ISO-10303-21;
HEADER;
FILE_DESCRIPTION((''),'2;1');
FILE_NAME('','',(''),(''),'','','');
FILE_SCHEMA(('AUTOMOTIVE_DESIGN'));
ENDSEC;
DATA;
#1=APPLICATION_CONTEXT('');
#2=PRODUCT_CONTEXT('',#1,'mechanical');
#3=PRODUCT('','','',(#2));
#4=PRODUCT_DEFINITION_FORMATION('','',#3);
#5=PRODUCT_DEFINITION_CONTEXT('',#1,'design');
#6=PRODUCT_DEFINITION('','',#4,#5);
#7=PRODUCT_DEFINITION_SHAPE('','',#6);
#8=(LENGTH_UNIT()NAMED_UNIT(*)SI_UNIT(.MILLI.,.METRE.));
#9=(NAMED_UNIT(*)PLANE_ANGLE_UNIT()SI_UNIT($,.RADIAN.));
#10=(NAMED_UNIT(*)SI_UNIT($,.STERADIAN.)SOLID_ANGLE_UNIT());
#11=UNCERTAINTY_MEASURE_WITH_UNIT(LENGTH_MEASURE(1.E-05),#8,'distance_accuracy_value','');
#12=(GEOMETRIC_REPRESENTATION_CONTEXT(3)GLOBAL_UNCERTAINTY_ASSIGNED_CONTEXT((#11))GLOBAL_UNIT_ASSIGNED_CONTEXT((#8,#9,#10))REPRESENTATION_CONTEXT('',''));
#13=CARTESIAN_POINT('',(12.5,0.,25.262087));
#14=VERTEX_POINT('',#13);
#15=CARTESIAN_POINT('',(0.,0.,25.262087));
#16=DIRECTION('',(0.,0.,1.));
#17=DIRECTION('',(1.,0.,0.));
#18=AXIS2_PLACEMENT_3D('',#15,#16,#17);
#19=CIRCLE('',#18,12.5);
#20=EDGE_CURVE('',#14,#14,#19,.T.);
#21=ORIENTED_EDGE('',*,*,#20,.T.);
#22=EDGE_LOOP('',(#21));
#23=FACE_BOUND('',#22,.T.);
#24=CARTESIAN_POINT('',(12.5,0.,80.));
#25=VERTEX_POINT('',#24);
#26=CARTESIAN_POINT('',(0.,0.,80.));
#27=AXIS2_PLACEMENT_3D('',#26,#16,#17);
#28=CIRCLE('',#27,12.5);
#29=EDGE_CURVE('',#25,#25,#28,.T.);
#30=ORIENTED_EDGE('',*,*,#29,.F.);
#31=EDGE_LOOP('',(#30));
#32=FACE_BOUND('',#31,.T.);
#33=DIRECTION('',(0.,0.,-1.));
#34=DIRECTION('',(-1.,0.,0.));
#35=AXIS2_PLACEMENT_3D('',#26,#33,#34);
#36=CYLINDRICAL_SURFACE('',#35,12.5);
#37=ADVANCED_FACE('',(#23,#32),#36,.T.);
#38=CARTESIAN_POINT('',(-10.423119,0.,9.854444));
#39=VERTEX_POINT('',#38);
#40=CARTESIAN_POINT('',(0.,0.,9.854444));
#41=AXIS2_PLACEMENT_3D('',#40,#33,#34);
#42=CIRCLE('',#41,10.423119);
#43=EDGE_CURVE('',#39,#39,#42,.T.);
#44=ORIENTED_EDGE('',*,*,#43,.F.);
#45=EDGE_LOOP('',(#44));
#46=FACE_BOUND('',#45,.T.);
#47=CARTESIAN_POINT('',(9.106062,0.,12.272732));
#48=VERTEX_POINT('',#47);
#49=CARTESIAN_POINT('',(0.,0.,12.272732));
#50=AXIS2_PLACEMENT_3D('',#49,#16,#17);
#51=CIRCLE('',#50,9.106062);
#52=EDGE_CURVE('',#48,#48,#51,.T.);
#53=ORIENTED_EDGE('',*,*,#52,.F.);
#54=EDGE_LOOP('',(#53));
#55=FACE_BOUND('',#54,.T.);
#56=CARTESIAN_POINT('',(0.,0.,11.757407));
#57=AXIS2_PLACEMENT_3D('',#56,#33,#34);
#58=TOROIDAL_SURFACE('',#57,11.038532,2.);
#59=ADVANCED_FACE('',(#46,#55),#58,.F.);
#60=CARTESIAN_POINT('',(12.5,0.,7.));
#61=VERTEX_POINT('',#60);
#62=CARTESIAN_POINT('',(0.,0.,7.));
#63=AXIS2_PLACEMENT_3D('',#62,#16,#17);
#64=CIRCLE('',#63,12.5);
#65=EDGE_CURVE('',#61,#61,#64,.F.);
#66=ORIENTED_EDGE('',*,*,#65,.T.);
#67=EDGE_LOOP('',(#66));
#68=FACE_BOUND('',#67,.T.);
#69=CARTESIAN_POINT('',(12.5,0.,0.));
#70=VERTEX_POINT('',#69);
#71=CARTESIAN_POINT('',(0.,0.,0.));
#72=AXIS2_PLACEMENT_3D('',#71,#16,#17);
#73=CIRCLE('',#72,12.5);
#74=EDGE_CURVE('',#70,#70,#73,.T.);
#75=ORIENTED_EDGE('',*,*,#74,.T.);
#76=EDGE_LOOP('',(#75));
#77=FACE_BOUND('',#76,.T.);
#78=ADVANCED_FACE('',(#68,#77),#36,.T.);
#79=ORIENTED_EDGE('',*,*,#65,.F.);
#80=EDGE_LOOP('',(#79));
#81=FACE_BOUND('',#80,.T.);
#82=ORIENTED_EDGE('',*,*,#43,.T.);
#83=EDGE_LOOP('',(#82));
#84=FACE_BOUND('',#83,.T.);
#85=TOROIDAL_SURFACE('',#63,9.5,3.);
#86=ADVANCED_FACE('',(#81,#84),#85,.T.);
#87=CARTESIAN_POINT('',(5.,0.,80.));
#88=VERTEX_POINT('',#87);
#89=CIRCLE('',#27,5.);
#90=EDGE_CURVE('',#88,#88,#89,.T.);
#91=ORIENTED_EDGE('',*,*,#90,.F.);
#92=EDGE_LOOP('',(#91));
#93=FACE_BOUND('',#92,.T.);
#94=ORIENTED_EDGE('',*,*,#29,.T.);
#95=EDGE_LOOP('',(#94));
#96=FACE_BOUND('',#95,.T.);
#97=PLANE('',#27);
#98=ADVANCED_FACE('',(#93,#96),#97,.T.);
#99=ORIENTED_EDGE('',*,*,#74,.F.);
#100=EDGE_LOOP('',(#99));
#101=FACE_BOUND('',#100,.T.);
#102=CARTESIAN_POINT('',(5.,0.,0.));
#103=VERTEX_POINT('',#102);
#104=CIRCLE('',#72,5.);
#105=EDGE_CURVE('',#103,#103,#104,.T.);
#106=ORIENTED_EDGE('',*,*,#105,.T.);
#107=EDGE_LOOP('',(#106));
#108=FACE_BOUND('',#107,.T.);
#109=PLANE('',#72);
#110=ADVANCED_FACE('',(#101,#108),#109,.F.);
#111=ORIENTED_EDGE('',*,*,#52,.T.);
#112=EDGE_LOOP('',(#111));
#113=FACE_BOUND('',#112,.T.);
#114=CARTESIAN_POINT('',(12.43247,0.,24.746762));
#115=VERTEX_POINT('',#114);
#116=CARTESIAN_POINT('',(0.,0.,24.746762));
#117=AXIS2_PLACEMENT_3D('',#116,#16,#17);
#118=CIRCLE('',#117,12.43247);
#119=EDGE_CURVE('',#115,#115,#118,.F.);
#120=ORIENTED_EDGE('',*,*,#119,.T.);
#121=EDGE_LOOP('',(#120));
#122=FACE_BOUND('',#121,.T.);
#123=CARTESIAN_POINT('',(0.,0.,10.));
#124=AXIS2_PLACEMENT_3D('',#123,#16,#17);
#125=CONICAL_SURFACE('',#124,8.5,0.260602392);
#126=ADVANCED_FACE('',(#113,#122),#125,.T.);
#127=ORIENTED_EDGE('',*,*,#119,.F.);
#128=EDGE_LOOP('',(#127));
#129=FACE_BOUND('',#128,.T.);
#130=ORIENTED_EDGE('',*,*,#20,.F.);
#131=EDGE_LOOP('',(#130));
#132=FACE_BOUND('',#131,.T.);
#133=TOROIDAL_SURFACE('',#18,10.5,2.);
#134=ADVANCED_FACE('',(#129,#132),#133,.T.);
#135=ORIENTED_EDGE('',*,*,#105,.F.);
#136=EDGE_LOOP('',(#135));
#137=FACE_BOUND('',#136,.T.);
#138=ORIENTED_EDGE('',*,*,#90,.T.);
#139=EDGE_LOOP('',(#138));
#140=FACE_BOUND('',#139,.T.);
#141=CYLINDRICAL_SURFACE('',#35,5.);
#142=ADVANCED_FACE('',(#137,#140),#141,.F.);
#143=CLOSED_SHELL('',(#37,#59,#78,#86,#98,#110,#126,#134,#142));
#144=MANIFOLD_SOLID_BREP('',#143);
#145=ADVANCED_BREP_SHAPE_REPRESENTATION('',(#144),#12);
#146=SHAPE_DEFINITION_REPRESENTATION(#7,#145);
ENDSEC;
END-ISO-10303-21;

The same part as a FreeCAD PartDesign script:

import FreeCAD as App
import Part
import Sketcher

V = App.Vector


def edges_at(feature, points):
    """Names of the edges that pass closest to the given points."""
    edges = feature.Shape.Edges
    near = lambda p: min(range(len(edges)), key=lambda i: edges[i].distToShape(Part.Vertex(*p))[0])
    return sorted({f"Edge{near(p) + 1}" for p in points})


def add_polygon(sketch, points):
    """Adds a closed chain of lines whose ends are joined by coincident constraints."""
    first, n = sketch.GeometryCount, len(points)
    for a, b in zip(points, points[1:] + points[:1]):
        sketch.addGeometry(Part.LineSegment(App.Vector(*a, 0), App.Vector(*b, 0)), False)
    for i in range(n):
        sketch.addConstraint(Sketcher.Constraint("Coincident", first + i, 2, first + (i + 1) % n, 1))

doc = App.newDocument("Part")
params = doc.addObject("Spreadsheet::Sheet", "Params")
for row, (alias, value) in enumerate([
    ("sketch1_diameter", "25 mm"),
    ("sketch1_diameter2", "10 mm"),
    ("pad1_length", "80 mm"),
    ("sketch2_width", "4 mm"),
    ("sketch2_height", "15 mm"),
    ("groove_angle", "360 deg"),
    ("fillet_radius", "3 mm"),
    ("fillet2_radius", "2 mm"),
    ("fillet3_radius", "2 mm"),
], start=1):
    params.set(f"A{row}", alias)
    params.set(f"B{row}", "=" + value)
    params.setAlias(f"B{row}", alias)

body = doc.addObject("PartDesign::Body", "Body")

sketch1 = body.newObject("Sketcher::SketchObject", "Sketch")
sketch1.AttachmentSupport = (doc.getObject("XY_Plane"), [""])
sketch1.MapMode = "FlatFace"
sketch1.addGeometry([
    Part.Circle(V(0, 0, 0), V(0, 0, 1), 12),
    Part.Circle(V(0, 0, 0), V(0, 0, 1), 5),
], False)
sketch1.addConstraint([
    Sketcher.Constraint("Coincident", 0, 3, -1, 1),
    Sketcher.Constraint("Coincident", 1, 3, -1, 1),
    Sketcher.Constraint("Diameter", 0, 25.0),
    Sketcher.Constraint("Diameter", 1, 10.0),
])
sketch1.setExpression("Constraints[2]", "Params.sketch1_diameter")
sketch1.setExpression("Constraints[3]", "Params.sketch1_diameter2")
pad1 = body.newObject("PartDesign::Pad", "Pad")
pad1.Profile = sketch1
pad1.setExpression("Length", "Params.pad1_length")

sketch2 = body.newObject("Sketcher::SketchObject", "Sketch001")
sketch2.AttachmentSupport = (doc.getObject("XZ_Plane"), [""])
sketch2.MapMode = "FlatFace"
add_polygon(sketch2, [(12.5, 10), (8.5, 10), (12.5, 25)])
sketch2.addConstraint([
    Sketcher.Constraint("Horizontal", 0),
    Sketcher.Constraint("Vertical", 2),
    Sketcher.Constraint("DistanceX", 0, 2, 0, 1, 4.0),
    Sketcher.Constraint("DistanceY", 2, 2, 2, 1, 15.0),
    Sketcher.Constraint("DistanceY", -1, 1, 0, 2, 10.0),
    Sketcher.Constraint("DistanceX", -1, 1, 0, 2, 8.5),
])
sketch2.setExpression("Constraints[5]", "Params.sketch2_width")
sketch2.setExpression("Constraints[6]", "Params.sketch2_height")
groove = body.newObject("PartDesign::Groove", "Groove")
groove.Profile = sketch2
groove.ReferenceAxis = (sketch2, ["V_Axis"])
groove.setExpression("Angle", "Params.groove_angle")
doc.recompute()

fillet = body.newObject("PartDesign::Fillet", "Fillet")
fillet.Base = (groove, edges_at(groove, [(-12.5, 0, 10)]))
fillet.setExpression("Radius", "Params.fillet_radius")
doc.recompute()

fillet2 = body.newObject("PartDesign::Fillet", "Fillet001")
fillet2.Base = (fillet, edges_at(fillet, [(8.5, 0, 10)]))
fillet2.setExpression("Radius", "Params.fillet2_radius")
doc.recompute()

fillet3 = body.newObject("PartDesign::Fillet", "Fillet002")
fillet3.Base = (fillet2, edges_at(fillet2, [(0, -12.5, 25)]))
fillet3.setExpression("Radius", "Params.fillet3_radius")

doc.recompute()
